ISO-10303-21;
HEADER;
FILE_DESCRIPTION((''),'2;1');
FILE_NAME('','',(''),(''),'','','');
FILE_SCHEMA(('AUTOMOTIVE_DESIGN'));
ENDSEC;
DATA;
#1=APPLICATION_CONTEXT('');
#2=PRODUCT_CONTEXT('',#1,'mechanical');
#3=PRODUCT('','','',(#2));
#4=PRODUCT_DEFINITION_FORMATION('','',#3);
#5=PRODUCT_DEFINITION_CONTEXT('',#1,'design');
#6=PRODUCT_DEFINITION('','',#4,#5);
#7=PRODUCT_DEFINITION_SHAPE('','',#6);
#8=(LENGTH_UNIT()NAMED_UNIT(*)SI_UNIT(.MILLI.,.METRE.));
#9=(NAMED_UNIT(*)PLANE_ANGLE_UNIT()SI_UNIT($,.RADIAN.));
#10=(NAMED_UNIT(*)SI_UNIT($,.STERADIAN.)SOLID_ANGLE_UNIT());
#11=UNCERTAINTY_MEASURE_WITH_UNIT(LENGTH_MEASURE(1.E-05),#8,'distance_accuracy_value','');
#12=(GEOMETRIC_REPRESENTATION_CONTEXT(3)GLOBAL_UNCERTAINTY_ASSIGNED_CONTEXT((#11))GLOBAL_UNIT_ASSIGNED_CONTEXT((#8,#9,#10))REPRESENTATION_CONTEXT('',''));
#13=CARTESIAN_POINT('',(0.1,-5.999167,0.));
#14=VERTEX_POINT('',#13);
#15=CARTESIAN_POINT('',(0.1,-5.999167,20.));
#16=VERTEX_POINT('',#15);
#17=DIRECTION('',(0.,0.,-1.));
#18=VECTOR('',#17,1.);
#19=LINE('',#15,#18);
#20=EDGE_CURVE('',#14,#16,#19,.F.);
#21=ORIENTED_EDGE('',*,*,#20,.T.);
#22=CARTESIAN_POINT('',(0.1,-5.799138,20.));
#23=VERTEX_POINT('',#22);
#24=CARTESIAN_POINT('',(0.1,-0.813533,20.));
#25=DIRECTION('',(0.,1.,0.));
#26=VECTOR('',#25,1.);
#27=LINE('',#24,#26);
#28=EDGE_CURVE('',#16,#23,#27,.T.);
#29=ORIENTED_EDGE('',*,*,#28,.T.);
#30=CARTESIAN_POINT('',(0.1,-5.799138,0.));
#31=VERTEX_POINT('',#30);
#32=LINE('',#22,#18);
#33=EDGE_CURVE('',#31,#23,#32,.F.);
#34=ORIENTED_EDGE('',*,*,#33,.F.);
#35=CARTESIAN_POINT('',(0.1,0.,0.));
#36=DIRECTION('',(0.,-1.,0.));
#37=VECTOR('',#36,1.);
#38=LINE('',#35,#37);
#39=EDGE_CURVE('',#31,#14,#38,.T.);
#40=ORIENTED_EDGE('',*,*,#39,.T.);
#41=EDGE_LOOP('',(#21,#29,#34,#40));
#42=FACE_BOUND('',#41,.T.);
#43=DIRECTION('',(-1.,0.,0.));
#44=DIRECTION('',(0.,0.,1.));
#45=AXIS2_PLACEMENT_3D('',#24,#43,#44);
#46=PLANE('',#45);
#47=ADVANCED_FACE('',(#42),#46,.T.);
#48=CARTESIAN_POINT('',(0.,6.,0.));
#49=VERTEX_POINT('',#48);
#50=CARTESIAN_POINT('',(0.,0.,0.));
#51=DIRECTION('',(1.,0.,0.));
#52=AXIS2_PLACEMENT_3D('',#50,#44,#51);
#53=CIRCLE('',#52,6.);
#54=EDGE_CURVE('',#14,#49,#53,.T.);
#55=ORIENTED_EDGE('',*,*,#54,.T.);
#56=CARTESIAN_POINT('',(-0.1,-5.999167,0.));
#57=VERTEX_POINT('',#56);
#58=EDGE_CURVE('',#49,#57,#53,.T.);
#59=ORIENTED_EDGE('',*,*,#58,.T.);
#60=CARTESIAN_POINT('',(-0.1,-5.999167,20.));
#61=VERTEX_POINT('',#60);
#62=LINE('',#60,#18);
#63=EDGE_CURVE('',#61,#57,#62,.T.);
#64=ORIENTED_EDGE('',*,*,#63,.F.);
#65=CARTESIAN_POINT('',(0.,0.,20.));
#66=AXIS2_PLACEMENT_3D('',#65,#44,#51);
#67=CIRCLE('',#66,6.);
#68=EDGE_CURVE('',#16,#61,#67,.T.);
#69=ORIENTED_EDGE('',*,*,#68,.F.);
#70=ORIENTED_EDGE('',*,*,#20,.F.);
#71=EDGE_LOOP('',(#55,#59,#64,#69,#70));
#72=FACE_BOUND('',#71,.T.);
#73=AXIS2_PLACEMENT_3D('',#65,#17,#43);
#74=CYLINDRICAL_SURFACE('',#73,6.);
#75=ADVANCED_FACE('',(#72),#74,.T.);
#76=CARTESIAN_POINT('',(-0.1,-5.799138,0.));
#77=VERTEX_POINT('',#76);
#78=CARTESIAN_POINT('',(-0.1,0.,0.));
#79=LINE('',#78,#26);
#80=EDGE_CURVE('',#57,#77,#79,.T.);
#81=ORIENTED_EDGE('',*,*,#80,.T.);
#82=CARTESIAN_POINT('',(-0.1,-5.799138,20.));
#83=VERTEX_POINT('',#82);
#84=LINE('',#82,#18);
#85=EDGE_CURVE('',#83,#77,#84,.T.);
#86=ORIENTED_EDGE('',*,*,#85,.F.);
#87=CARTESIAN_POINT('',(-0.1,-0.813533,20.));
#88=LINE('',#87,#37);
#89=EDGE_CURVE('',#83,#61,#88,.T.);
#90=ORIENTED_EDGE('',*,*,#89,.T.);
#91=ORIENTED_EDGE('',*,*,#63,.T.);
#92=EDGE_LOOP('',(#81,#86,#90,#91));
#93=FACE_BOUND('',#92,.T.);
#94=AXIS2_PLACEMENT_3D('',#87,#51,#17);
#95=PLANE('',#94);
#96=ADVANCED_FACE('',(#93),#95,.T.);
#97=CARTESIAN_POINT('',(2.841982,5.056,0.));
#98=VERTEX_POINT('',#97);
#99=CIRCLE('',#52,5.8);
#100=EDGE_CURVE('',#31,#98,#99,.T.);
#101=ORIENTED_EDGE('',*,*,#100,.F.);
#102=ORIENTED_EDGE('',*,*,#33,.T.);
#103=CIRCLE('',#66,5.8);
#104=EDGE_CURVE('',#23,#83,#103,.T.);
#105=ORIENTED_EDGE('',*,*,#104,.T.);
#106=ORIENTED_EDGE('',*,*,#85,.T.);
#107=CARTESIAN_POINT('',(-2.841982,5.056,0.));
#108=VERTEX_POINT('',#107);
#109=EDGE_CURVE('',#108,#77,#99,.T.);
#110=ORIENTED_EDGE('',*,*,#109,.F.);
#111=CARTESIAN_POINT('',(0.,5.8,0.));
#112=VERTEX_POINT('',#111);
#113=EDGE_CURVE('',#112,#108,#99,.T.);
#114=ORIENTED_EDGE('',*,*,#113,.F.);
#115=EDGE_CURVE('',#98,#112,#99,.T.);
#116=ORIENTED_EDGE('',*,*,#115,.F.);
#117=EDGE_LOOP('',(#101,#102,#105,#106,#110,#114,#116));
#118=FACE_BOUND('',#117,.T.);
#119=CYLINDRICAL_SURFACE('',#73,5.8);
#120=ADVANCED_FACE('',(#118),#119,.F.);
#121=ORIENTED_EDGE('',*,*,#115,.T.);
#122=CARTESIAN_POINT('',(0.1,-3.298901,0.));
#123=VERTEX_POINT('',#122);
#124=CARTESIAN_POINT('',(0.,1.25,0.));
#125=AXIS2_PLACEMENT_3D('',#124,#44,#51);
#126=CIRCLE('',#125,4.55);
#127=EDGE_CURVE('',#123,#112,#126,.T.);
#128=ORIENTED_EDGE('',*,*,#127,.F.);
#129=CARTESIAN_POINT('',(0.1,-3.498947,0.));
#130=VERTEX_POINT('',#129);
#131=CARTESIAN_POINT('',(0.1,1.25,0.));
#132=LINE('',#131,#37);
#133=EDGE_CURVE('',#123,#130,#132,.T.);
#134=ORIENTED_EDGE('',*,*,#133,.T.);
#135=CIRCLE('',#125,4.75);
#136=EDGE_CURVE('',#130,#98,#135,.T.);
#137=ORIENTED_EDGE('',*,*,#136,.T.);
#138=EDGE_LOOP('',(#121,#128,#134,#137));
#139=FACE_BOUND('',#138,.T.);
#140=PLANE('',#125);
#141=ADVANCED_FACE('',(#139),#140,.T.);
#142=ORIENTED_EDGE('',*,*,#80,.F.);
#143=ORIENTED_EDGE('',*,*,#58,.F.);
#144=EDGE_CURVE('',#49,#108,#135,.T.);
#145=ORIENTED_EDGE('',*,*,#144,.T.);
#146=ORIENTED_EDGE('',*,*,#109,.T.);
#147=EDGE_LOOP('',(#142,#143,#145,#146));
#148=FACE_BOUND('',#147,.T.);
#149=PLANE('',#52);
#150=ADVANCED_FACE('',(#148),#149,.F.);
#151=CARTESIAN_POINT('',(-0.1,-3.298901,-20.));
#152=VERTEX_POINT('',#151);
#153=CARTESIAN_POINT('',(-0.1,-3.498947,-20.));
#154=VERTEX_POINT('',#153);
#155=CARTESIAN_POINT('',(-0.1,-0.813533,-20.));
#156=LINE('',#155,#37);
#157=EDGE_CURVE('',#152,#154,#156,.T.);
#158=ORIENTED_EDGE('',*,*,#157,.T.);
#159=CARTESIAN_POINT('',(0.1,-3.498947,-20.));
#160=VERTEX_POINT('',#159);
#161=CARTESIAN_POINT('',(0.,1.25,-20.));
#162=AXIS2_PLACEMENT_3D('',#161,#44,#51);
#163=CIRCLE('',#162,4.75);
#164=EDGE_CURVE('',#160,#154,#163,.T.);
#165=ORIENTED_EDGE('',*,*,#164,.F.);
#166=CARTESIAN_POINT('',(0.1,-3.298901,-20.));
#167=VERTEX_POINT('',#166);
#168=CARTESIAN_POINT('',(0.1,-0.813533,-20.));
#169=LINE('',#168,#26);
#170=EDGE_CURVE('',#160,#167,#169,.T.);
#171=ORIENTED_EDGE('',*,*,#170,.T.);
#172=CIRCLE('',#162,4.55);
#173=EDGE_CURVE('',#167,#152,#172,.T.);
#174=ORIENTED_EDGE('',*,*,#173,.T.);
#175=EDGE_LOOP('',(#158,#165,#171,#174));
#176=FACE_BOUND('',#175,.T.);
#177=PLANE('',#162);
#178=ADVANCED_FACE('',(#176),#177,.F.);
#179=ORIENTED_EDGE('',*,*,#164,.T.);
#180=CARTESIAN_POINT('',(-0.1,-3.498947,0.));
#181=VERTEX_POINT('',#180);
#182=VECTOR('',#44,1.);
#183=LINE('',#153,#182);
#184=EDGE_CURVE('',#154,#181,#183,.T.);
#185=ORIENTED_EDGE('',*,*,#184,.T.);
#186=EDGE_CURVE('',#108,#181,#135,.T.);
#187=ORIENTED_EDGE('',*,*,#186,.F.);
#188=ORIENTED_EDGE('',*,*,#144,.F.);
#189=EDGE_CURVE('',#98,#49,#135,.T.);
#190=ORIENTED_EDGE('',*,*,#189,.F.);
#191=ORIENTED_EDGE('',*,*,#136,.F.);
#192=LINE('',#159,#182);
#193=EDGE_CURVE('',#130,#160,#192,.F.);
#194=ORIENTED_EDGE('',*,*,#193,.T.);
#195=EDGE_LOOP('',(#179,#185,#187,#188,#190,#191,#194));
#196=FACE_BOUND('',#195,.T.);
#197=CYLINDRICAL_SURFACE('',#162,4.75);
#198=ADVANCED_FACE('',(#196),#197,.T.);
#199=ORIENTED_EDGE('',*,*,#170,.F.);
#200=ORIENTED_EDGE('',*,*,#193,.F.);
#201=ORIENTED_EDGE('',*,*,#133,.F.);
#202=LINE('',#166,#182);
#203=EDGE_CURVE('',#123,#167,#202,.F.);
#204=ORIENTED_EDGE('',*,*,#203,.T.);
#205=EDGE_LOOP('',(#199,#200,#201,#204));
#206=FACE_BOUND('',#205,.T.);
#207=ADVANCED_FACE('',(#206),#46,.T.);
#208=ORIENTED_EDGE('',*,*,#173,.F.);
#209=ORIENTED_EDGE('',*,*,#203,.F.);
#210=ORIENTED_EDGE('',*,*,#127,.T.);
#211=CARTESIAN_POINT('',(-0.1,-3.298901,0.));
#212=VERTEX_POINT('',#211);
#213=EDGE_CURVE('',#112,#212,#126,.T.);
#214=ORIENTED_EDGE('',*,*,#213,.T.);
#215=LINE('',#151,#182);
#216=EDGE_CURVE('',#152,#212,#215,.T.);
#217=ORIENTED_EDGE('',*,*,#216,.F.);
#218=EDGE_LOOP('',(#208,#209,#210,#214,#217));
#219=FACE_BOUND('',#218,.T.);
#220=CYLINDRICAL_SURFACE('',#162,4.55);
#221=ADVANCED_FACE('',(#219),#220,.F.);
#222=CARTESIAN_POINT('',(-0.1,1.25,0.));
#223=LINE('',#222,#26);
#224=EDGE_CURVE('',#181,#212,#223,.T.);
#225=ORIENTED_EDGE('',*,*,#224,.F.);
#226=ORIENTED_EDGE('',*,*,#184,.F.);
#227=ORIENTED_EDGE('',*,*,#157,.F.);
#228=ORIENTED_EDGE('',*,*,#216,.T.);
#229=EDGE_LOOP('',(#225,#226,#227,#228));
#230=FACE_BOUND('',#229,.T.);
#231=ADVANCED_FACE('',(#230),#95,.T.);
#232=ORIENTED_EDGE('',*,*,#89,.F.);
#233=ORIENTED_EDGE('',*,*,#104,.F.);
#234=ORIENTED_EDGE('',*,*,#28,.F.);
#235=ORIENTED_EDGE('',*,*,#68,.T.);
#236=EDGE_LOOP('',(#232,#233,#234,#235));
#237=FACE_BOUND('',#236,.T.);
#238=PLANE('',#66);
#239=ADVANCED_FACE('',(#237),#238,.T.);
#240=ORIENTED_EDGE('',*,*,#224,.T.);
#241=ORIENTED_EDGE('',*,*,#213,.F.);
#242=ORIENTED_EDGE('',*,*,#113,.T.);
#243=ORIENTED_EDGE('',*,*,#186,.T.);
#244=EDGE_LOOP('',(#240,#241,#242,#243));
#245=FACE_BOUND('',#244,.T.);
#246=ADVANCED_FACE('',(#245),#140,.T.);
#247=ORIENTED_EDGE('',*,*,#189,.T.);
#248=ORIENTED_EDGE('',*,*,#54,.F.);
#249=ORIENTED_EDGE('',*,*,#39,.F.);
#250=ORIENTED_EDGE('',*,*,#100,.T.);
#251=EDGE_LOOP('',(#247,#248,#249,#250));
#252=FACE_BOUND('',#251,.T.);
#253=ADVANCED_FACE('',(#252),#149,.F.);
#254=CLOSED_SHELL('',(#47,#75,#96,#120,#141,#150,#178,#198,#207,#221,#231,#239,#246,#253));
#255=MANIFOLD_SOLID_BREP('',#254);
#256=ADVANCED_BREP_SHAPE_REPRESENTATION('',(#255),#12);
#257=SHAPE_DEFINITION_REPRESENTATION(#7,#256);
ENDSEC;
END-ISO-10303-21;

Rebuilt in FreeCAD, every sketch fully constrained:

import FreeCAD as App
import Part
import Sketcher
Q = App.Units.Quantity

doc = App.newDocument("Part")
body = doc.addObject("PartDesign::Body", "Body")

# Sketch on XY plane
sketch1 = body.newObject("Sketcher::SketchObject", "Sketch")
sketch1.AttachmentSupport = (doc.getObject("XY_Plane"), [""])
sketch1.MapMode = "FlatFace"
sketch1.addGeometry(Part.Circle(App.Vector(0, 0, 0), App.Vector(0, 0, 1), 6), False)
sketch1.addGeometry(Part.Circle(App.Vector(0, 0, 0), App.Vector(0, 0, 1), 6), False)
sketch1.addConstraint(Sketcher.Constraint("Coincident", 0, 3, -1, 1))
sketch1.addConstraint(Sketcher.Constraint("Coincident", 1, 3, -1, 1))
sketch1.addConstraint(Sketcher.Constraint("Diameter", 0, Q("12 mm")))
sketch1.addConstraint(Sketcher.Constraint("Diameter", 1, Q("11.6 mm")))
pad1 = body.newObject("PartDesign::Pad", "Pad")
pad1.Profile = sketch1
pad1.Length = 20

# Sketch on XY plane
sketch2 = body.newObject("Sketcher::SketchObject", "Sketch001")
sketch2.AttachmentSupport = (doc.getObject("XY_Plane"), [""])
sketch2.MapMode = "FlatFace"
sketch2.addGeometry(Part.Circle(App.Vector(0, 1.2, 0), App.Vector(0, 0, 1), 4.8), False)
sketch2.addGeometry(Part.Circle(App.Vector(0, 1.2, 0), App.Vector(0, 0, 1), 4.5), False)
sketch2.addConstraint(Sketcher.Constraint("Coincident", 1, 3, 0, 3))
sketch2.addConstraint(Sketcher.Constraint("PointOnObject", 0, 3, -2))
sketch2.addConstraint(Sketcher.Constraint("Diameter", 0, Q("9.5 mm")))
sketch2.addConstraint(Sketcher.Constraint("Diameter", 1, Q("9.1 mm")))
sketch2.addConstraint(Sketcher.Constraint("DistanceY", -1, 1, 0, 3, Q("1.25 mm")))
pad2 = body.newObject("PartDesign::Pad", "Pad001")
pad2.Profile = sketch2
pad2.Length = 20
pad2.Reversed = True

# Sketch on XY plane
sketch3 = body.newObject("Sketcher::SketchObject", "Sketch002")
sketch3.AttachmentSupport = (doc.getObject("XY_Plane"), [""])
sketch3.MapMode = "FlatFace"
sketch3.addGeometry(Part.LineSegment(App.Vector(-0.1, -0.81, 0), App.Vector(-0.1, -7.07, 0)), False)
sketch3.addGeometry(Part.LineSegment(App.Vector(-0.1, -7.07, 0), App.Vector(0.1, -7.07, 0)), False)
sketch3.addGeometry(Part.LineSegment(App.Vector(0.1, -7.07, 0), App.Vector(0.1, -0.81, 0)), False)
sketch3.addGeometry(Part.LineSegment(App.Vector(0.1, -0.81, 0), App.Vector(-0.1, -0.81, 0)), False)
sketch3.addConstraint(Sketcher.Constraint("Coincident", 0, 2, 1, 1))
sketch3.addConstraint(Sketcher.Constraint("Coincident", 1, 2, 2, 1))
sketch3.addConstraint(Sketcher.Constraint("Coincident", 2, 2, 3, 1))
sketch3.addConstraint(Sketcher.Constraint("Coincident", 3, 2, 0, 1))
sketch3.addConstraint(Sketcher.Constraint("Vertical", 0))
sketch3.addConstraint(Sketcher.Constraint("Horizontal", 1))
sketch3.addConstraint(Sketcher.Constraint("Vertical", 2))
sketch3.addConstraint(Sketcher.Constraint("Horizontal", 3))
sketch3.addConstraint(Sketcher.Constraint("DistanceX", 1, 1, 1, 2, Q("0.2 mm")))
sketch3.addConstraint(Sketcher.Constraint("DistanceX", 0, 2, -1, 1, Q("0.1 mm")))
sketch3.addConstraint(Sketcher.Constraint("DistanceY", 0, 2, 0, 1, Q("6.257026 mm")))
sketch3.addConstraint(Sketcher.Constraint("DistanceY", 0, 2, -1, 1, Q("7.07056 mm")))
pocket1 = body.newObject("PartDesign::Pocket", "Pocket")
pocket1.Profile = sketch3
pocket1.Type = "ThroughAll"
pocket1.Midplane = True

doc.recompute()
